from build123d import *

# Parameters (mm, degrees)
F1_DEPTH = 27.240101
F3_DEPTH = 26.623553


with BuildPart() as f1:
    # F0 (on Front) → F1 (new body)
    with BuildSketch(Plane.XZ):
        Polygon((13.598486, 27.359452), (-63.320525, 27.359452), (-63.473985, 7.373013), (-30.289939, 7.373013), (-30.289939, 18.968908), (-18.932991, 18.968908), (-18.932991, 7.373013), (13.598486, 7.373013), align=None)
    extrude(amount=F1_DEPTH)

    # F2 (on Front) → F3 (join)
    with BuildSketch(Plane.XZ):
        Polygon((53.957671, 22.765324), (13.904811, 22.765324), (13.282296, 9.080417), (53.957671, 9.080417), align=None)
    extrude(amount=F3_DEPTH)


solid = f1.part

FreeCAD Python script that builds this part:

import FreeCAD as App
import Part
import Sketcher
from FreeCAD import Vector

doc = App.newDocument("Part")
body = doc.addObject("PartDesign::Body", "Body")

sketch1 = doc.addObject("Sketcher::SketchObject", "Sketch")
body.addObject(sketch1)
sketch1.AttachmentSupport = (doc.XZ_Plane, [""])
sketch1.MapMode = "FlatFace"
sketch1.addGeometry([
    Part.LineSegment(Vector(13.598486, 27.359452, 0), Vector(-63.320525, 27.359452, 0)),
    Part.LineSegment(Vector(-63.320525, 27.359452, 0), Vector(-63.473985, 7.373013, 0)),
    Part.LineSegment(Vector(-63.473985, 7.373013, 0), Vector(-30.289939, 7.373013, 0)),
    Part.LineSegment(Vector(-30.289939, 7.373013, 0), Vector(-30.289939, 18.968908, 0)),
    Part.LineSegment(Vector(-30.289939, 18.968908, 0), Vector(-18.932991, 18.968908, 0)),
    Part.LineSegment(Vector(-18.932991, 18.968908, 0), Vector(-18.932991, 7.373013, 0)),
    Part.LineSegment(Vector(-18.932991, 7.373013, 0), Vector(13.598486, 7.373013, 0)),
    Part.LineSegment(Vector(13.598486, 7.373013, 0), Vector(13.598486, 27.359452, 0)),
], False)
sketch1.addConstraint([
    Sketcher.Constraint("Coincident", 0, 2, 1, 1),
    Sketcher.Constraint("Coincident", 1, 2, 2, 1),
    Sketcher.Constraint("Coincident", 2, 2, 3, 1),
    Sketcher.Constraint("Coincident", 3, 2, 4, 1),
    Sketcher.Constraint("Coincident", 4, 2, 5, 1),
    Sketcher.Constraint("Coincident", 5, 2, 6, 1),
    Sketcher.Constraint("Coincident", 6, 2, 7, 1),
    Sketcher.Constraint("Coincident", 7, 2, 0, 1),
    Sketcher.Constraint("Horizontal", 0),
    Sketcher.Constraint("Horizontal", 2),
    Sketcher.Constraint("Vertical", 3),
    Sketcher.Constraint("Horizontal", 4),
    Sketcher.Constraint("Vertical", 5),
    Sketcher.Constraint("Horizontal", 6),
    Sketcher.Constraint("Vertical", 7),
    Sketcher.Constraint("Horizontal", 2, 2, 5, 2),
    Sketcher.Constraint("DistanceX", 0, 2, 0, 1, 76.919011),
    Sketcher.Constraint("DistanceY", 7, 1, 7, 2, 19.986439),
    Sketcher.Constraint("Distance", 1, 19.987028),
    Sketcher.Constraint("DistanceX", 2, 1, 2, 2, 33.184046),
    Sketcher.Constraint("DistanceX", 4, 1, 4, 2, 11.356948),
    Sketcher.Constraint("DistanceY", 3, 1, 3, 2, 11.595895),
    Sketcher.Constraint("DistanceX", 2, 2, -1, 1, 30.289939),
    Sketcher.Constraint("DistanceY", -1, 1, 0, 2, 27.359452),
])
pad1 = doc.addObject("PartDesign::Pad", "Pad")
body.addObject(pad1)
pad1.Profile = sketch1
pad1.Length = 27.240101

sketch2 = doc.addObject("Sketcher::SketchObject", "Sketch001")
body.addObject(sketch2)
sketch2.AttachmentSupport = (doc.XZ_Plane, [""])
sketch2.MapMode = "FlatFace"
sketch2.addGeometry([
    Part.LineSegment(Vector(54, 23, 0), Vector(14, 23, 0)),
    Part.LineSegment(Vector(14, 23, 0), Vector(13, 9, 0)),
    Part.LineSegment(Vector(13, 9, 0), Vector(54, 9, 0)),
    Part.LineSegment(Vector(54, 9, 0), Vector(54, 23, 0)),
], False)
sketch2.addConstraint([
    Sketcher.Constraint("Coincident", 0, 2, 1, 1),
    Sketcher.Constraint("Coincident", 1, 2, 2, 1),
    Sketcher.Constraint("Coincident", 2, 2, 3, 1),
    Sketcher.Constraint("Coincident", 3, 2, 0, 1),
    Sketcher.Constraint("Horizontal", 0),
    Sketcher.Constraint("Horizontal", 2),
    Sketcher.Constraint("Vertical", 3),
    Sketcher.Constraint("DistanceX", 0, 2, 0, 1, 40.05286),
    Sketcher.Constraint("Distance", 1, 13.699059),
    Sketcher.Constraint("DistanceX", 2, 1, 2, 2, 40.675375),
    Sketcher.Constraint("DistanceX", -1, 1, 0, 2, 13.904811),
    Sketcher.Constraint("DistanceY", -1, 1, 0, 2, 22.765324),
])
pad2 = doc.addObject("PartDesign::Pad", "Pad001")
body.addObject(pad2)
pad2.Profile = sketch2
pad2.Length = 26.623553

doc.recompute()
